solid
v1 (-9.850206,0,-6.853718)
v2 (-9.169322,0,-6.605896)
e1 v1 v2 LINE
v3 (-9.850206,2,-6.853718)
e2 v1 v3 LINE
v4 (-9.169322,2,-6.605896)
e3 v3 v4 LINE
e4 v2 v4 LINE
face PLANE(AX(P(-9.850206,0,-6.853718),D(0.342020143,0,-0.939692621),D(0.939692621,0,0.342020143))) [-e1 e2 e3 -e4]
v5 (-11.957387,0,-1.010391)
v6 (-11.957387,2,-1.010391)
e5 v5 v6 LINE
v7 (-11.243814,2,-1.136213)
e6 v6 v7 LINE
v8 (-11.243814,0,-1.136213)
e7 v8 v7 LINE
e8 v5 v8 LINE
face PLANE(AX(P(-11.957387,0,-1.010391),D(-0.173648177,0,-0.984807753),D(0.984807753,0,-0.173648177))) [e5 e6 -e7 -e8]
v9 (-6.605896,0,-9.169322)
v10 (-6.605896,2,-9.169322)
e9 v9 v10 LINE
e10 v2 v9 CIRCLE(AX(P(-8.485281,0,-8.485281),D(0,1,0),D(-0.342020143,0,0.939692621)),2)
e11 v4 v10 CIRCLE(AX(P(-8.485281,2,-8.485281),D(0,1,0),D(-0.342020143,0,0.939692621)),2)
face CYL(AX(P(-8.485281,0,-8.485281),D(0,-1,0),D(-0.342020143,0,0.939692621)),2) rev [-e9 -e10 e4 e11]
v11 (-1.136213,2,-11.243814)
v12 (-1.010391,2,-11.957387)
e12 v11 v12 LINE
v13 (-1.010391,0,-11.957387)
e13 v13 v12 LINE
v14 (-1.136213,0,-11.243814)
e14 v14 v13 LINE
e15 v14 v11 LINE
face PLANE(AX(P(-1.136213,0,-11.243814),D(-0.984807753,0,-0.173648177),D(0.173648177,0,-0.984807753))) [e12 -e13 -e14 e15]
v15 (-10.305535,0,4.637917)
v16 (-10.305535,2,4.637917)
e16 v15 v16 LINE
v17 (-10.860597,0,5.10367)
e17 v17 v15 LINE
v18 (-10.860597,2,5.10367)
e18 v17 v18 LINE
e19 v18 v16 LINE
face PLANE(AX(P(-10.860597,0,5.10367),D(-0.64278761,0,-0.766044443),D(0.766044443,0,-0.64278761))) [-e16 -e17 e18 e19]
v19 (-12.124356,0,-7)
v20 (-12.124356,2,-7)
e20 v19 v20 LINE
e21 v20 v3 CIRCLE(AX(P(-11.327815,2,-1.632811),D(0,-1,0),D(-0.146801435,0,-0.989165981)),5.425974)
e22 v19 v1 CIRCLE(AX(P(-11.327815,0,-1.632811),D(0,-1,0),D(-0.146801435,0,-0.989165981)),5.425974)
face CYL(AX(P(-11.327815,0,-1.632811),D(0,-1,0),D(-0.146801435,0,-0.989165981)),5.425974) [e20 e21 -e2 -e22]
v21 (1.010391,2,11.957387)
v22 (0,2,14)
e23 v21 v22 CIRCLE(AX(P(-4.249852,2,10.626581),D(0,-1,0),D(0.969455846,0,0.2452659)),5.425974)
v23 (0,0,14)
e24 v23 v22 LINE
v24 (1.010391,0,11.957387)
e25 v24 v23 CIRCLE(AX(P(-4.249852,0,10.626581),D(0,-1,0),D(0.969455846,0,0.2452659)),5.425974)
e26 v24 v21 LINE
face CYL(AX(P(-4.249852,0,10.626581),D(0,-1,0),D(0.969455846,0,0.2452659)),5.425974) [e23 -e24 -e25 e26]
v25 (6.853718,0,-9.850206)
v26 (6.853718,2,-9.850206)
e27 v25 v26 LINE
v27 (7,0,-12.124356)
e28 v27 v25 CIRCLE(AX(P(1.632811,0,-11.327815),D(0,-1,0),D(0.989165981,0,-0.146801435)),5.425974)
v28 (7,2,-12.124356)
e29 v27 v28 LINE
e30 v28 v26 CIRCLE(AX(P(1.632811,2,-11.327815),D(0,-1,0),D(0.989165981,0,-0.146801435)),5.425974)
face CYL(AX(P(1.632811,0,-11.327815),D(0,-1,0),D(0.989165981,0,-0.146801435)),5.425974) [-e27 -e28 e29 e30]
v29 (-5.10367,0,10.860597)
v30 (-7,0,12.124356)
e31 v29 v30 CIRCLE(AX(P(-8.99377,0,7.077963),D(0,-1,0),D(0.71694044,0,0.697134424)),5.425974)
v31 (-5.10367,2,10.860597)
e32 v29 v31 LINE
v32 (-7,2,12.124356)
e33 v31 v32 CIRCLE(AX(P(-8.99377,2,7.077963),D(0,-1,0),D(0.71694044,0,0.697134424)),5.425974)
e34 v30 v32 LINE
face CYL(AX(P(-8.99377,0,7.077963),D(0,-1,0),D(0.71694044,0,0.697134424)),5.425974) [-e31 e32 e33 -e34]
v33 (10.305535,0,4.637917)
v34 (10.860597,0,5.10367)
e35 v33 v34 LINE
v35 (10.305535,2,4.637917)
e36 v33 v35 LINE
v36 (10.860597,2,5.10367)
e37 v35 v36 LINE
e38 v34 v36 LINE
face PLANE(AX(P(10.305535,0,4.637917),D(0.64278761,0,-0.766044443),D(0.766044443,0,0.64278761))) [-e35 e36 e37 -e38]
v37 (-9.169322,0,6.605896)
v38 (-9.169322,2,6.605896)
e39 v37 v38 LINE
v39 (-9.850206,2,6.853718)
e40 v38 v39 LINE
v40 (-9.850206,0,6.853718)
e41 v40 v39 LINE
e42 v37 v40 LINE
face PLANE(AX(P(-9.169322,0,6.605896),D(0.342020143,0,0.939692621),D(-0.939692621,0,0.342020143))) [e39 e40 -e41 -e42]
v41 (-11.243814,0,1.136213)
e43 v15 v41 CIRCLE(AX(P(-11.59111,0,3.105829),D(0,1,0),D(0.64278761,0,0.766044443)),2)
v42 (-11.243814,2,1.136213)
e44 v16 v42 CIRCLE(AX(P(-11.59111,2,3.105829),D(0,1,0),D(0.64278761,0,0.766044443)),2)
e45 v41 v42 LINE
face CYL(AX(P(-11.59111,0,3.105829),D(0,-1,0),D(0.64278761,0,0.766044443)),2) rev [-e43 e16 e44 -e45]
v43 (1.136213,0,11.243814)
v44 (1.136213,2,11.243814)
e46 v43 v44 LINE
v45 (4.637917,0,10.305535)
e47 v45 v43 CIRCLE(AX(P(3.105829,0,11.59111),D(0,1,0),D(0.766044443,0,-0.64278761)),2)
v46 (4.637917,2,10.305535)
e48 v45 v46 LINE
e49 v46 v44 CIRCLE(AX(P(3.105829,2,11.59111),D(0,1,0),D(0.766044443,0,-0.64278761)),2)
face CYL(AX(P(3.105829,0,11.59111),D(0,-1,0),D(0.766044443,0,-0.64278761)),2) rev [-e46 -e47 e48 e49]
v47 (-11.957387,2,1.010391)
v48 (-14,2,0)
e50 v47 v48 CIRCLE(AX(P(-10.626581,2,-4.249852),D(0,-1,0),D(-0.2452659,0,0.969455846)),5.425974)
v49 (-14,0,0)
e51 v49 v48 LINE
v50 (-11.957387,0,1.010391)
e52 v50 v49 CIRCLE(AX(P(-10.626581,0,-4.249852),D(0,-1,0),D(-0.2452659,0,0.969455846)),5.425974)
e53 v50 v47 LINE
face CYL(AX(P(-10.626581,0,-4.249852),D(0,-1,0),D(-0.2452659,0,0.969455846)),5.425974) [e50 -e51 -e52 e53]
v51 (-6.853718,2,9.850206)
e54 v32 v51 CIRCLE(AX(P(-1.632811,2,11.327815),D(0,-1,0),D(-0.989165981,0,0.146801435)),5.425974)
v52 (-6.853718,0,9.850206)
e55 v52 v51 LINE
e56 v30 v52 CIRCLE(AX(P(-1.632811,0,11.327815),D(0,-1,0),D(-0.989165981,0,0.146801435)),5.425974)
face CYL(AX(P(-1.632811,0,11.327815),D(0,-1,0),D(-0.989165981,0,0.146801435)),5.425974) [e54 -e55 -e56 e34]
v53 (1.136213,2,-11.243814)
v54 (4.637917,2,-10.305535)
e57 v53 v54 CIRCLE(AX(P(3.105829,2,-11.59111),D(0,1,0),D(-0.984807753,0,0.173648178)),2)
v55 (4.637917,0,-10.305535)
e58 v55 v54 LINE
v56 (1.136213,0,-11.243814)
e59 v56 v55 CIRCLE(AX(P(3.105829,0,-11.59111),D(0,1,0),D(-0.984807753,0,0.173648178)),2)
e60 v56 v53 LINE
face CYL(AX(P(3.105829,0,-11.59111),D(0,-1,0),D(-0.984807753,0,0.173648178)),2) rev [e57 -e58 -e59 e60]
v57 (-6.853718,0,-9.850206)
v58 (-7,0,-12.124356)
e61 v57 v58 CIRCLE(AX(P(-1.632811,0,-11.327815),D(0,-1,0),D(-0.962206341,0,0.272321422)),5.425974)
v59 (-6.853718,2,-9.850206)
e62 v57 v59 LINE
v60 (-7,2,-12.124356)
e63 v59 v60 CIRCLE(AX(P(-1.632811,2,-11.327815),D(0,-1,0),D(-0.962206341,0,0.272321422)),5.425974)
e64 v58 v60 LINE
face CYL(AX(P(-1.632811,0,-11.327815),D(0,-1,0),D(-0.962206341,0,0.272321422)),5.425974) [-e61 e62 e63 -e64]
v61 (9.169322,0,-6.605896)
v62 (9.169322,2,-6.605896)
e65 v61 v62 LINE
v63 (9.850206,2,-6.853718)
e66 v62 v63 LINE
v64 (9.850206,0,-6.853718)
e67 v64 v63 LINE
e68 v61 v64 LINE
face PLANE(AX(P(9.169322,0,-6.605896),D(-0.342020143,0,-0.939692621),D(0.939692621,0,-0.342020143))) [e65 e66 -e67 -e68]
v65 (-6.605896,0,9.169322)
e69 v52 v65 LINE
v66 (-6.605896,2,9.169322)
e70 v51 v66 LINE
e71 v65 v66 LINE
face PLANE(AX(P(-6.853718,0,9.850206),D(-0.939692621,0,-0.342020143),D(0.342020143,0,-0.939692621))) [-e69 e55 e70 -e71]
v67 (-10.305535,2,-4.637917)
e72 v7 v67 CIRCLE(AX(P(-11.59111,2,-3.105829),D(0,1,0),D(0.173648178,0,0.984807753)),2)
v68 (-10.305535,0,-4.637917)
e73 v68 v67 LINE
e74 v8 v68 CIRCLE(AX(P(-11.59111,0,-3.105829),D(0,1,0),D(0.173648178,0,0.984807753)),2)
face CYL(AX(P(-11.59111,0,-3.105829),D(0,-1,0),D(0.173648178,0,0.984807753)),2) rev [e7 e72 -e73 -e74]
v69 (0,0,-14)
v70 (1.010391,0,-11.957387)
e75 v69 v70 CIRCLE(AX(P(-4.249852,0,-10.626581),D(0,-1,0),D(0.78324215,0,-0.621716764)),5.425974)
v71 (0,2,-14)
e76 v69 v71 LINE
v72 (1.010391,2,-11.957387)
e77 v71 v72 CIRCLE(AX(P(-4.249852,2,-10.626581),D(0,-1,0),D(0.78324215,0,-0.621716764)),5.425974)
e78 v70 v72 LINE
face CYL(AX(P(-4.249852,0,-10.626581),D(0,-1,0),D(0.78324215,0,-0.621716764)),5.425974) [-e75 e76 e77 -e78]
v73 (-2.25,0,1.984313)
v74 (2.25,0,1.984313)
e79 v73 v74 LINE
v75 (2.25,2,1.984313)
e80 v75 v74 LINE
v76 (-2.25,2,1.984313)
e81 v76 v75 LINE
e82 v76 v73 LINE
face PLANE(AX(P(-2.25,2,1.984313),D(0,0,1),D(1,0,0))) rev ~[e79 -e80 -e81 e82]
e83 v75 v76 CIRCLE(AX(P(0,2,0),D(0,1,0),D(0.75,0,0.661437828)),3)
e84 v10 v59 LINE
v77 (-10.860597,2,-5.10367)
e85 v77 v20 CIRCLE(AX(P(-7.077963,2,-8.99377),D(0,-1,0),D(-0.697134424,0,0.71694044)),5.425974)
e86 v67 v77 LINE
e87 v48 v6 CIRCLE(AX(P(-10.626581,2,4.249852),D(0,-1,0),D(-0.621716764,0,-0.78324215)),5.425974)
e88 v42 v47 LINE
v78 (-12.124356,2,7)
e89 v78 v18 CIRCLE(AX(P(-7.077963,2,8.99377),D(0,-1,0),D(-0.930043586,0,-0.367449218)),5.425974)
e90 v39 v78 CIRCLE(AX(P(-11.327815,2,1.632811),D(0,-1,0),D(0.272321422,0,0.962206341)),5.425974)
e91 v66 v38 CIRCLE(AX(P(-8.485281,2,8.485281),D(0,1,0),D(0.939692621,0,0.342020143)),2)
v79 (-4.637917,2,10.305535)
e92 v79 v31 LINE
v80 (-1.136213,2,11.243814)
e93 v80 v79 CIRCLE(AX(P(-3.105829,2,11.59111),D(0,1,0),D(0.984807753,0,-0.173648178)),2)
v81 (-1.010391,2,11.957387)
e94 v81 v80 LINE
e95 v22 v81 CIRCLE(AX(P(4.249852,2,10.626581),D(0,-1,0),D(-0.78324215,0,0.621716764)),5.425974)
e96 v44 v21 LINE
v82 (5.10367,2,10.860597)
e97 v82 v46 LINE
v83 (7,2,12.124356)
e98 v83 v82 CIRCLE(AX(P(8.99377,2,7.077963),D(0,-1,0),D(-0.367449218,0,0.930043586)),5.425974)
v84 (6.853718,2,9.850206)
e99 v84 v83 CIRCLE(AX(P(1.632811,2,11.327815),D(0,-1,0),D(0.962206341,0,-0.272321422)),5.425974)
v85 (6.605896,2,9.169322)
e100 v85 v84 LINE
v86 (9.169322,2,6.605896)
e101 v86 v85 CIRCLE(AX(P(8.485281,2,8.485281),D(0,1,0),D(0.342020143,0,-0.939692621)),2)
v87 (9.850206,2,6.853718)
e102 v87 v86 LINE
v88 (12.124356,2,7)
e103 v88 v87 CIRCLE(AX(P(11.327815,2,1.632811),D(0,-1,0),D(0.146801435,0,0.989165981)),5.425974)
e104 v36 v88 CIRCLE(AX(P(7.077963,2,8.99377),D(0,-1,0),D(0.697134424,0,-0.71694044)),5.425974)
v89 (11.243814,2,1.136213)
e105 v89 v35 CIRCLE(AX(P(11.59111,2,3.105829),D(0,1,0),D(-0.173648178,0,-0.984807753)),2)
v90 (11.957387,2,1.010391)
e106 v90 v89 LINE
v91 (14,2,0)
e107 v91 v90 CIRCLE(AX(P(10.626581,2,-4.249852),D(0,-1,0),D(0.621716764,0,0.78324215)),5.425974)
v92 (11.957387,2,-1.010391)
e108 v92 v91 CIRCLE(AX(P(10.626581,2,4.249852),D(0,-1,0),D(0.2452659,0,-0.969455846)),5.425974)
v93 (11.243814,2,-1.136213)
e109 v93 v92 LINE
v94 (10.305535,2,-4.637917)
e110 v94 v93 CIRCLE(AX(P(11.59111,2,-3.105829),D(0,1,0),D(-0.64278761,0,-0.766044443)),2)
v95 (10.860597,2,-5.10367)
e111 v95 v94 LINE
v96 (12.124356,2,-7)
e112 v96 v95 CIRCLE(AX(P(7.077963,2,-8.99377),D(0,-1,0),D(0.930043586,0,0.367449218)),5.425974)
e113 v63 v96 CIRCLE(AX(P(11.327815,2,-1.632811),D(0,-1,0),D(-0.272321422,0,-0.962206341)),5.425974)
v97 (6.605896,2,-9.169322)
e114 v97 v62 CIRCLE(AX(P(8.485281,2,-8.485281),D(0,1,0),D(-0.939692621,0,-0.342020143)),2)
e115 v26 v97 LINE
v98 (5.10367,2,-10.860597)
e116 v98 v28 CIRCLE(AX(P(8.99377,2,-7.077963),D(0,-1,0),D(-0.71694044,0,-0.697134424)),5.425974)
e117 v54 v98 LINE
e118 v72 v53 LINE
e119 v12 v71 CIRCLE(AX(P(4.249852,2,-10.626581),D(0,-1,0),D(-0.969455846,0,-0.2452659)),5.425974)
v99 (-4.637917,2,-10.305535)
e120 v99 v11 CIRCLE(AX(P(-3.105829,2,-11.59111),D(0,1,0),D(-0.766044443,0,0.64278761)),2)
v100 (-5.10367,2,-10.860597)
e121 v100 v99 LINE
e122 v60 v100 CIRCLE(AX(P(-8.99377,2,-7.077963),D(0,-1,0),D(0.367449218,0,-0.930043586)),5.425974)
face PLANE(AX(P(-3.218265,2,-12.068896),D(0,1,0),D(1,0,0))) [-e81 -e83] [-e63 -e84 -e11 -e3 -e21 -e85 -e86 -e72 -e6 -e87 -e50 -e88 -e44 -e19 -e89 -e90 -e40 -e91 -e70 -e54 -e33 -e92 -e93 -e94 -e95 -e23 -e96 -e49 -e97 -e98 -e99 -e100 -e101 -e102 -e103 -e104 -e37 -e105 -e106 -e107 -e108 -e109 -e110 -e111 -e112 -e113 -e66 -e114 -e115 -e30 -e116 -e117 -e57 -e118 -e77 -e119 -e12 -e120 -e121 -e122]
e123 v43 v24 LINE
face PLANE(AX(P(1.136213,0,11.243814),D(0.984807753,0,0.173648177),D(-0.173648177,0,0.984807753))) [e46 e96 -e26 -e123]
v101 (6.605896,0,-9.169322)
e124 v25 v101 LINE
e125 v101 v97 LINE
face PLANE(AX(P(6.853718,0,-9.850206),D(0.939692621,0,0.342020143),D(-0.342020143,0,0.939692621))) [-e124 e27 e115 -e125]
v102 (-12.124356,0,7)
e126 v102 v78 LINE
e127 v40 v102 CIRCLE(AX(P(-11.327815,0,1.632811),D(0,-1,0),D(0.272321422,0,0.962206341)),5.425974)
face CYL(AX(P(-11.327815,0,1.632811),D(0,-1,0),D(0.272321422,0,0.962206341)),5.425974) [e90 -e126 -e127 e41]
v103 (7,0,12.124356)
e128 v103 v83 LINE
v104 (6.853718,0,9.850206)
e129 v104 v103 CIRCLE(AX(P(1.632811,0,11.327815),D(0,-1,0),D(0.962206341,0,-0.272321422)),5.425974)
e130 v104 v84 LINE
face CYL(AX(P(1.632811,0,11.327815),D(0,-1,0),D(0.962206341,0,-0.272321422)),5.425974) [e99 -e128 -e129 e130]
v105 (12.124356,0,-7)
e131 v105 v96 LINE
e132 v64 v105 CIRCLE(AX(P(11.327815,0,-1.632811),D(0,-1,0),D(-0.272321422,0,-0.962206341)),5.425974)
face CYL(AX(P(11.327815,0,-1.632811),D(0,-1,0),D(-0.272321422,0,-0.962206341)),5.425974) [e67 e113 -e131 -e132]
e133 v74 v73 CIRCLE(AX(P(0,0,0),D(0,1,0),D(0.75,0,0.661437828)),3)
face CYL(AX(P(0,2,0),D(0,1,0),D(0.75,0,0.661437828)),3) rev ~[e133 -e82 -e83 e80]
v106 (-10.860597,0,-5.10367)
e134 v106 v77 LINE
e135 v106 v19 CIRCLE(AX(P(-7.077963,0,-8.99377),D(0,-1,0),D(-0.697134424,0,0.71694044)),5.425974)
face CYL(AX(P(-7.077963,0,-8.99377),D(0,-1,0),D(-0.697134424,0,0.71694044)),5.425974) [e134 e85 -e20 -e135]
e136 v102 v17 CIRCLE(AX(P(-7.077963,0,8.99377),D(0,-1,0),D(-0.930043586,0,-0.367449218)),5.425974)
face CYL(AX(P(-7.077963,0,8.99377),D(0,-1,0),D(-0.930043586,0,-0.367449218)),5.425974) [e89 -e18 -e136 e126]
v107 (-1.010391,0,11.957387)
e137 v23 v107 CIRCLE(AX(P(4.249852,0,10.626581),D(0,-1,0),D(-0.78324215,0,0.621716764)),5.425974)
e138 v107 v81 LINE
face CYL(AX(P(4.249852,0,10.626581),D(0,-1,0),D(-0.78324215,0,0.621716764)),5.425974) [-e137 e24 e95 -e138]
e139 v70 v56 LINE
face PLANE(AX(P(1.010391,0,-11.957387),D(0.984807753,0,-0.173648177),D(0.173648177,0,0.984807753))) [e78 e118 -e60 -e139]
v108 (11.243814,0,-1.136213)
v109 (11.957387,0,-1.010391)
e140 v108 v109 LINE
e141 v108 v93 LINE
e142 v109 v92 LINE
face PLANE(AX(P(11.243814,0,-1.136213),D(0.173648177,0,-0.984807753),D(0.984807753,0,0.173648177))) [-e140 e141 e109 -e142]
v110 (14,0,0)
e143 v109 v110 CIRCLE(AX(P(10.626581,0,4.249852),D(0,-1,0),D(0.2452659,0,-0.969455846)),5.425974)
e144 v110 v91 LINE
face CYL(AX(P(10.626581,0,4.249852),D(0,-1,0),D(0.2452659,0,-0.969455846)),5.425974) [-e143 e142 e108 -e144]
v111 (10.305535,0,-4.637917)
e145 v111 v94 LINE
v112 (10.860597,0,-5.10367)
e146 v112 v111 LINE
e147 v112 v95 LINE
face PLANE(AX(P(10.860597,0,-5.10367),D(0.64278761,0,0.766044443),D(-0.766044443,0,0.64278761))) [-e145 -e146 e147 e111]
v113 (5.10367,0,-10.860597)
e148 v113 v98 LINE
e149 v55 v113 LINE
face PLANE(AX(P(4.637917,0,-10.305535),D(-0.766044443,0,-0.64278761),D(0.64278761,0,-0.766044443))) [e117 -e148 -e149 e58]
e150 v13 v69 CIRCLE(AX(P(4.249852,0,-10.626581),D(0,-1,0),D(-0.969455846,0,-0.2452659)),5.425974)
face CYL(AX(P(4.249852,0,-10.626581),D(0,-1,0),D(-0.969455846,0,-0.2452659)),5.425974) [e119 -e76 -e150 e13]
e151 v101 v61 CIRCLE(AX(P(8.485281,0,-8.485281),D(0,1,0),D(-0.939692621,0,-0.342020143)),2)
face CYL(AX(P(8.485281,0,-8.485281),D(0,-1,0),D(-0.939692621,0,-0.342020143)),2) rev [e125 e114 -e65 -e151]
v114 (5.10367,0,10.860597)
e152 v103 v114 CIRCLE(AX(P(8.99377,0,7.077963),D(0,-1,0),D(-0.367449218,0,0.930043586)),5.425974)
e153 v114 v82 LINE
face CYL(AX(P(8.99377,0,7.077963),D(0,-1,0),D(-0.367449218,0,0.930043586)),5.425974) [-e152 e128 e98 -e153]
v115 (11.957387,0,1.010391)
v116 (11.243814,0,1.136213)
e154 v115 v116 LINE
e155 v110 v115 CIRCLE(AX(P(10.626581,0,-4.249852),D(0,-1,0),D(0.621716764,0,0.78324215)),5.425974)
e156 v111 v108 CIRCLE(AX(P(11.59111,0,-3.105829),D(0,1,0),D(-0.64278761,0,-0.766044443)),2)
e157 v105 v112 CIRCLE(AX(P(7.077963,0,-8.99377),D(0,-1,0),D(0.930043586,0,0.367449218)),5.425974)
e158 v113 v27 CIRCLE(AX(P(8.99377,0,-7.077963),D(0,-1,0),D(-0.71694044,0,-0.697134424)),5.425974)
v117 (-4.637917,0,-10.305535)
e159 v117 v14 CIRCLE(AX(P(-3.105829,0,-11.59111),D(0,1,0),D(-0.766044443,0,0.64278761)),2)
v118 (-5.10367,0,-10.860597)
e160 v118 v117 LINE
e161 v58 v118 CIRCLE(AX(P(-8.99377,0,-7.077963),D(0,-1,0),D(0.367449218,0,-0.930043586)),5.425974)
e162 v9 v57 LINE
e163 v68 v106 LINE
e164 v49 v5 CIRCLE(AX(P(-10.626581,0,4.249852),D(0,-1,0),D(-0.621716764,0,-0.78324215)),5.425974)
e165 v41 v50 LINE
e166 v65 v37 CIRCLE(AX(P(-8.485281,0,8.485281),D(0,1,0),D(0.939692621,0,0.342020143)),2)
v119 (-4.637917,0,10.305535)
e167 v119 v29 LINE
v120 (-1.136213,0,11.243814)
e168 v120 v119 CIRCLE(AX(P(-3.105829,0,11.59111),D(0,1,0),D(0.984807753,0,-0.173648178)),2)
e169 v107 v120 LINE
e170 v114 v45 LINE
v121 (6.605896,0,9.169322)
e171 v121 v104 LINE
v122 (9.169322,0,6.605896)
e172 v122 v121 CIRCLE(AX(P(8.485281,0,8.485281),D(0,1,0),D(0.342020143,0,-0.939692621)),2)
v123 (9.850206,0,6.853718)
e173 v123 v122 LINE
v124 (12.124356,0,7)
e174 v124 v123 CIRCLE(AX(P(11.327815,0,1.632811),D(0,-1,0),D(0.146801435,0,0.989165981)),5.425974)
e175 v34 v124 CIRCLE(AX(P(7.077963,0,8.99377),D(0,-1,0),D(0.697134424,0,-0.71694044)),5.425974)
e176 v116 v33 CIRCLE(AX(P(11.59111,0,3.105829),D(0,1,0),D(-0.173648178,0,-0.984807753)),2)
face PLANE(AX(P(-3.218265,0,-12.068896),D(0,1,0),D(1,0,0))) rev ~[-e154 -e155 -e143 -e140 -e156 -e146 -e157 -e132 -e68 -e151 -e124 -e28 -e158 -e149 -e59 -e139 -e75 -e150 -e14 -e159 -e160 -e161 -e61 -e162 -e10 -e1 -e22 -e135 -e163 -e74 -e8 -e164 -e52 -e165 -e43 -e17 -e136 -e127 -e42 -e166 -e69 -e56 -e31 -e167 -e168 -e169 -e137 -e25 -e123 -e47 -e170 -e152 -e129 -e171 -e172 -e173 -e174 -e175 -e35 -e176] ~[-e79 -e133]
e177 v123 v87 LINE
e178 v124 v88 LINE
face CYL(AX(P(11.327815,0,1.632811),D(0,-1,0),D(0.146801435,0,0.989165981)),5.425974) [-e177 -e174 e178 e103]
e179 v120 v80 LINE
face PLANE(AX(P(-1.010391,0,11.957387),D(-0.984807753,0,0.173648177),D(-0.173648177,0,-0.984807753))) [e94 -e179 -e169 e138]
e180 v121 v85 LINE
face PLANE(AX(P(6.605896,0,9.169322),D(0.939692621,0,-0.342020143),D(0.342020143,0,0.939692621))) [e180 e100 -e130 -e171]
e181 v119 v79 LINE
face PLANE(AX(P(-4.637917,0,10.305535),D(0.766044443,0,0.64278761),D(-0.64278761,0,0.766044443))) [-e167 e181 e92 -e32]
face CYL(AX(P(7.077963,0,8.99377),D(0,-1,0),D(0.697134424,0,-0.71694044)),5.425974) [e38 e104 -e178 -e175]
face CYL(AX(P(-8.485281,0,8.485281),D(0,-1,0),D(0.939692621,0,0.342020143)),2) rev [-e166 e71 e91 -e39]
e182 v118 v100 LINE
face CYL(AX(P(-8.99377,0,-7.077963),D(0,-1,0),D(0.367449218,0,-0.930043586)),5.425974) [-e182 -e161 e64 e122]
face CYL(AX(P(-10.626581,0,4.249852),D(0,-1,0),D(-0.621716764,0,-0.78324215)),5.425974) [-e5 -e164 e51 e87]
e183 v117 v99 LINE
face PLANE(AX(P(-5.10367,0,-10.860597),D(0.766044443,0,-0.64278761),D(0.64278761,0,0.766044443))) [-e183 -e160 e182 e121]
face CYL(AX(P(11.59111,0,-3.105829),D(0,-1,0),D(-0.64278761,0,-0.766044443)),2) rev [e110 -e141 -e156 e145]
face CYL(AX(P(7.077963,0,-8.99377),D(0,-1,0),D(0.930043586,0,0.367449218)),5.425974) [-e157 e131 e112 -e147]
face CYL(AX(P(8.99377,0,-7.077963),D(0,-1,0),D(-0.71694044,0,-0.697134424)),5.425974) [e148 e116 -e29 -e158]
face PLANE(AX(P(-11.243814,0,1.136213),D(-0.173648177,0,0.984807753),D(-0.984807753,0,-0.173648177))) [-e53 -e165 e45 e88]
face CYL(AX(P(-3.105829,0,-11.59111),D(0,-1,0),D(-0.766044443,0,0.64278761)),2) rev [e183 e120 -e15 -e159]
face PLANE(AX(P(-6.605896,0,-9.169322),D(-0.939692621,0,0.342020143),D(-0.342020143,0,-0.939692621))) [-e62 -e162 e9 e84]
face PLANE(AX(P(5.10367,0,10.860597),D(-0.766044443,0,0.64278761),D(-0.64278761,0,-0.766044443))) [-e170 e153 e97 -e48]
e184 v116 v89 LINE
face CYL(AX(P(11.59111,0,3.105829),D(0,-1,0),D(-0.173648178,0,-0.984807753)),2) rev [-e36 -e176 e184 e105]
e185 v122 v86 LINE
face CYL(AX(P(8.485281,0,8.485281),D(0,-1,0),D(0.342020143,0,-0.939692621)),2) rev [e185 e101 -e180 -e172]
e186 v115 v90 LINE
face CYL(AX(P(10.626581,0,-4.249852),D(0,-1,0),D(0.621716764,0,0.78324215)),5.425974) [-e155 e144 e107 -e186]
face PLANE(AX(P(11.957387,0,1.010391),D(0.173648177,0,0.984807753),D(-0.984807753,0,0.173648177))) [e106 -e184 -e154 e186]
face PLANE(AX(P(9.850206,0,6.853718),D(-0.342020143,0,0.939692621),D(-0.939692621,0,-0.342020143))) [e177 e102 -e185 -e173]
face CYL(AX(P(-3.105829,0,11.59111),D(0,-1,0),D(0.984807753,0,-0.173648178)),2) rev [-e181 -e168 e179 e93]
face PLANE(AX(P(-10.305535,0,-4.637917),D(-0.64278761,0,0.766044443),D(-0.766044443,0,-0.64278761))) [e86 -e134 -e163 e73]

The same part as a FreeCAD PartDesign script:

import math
import FreeCAD as App
import Part
import Sketcher
from FreeCAD import Vector
Q = App.Units.Quantity

doc = App.newDocument("Part")
params = doc.addObject("Spreadsheet::Sheet", "Params")
for row, (alias, value) in enumerate([
    ("sketch1_radius", "14 mm"),
    ("pad1_length", "2 mm"),
    ("sketch2_radius", "14 mm"),
    ("sketch2_radius2", "2 mm"),
    ("pocket1_length", "2 mm"),
    ("sketch3_radius", "3 mm"),
    ("sketch3_width", "4.5 mm"),
    ("pocket2_length", "2 mm"),
    ("sketch4_radius", "14 mm"),
    ("sketch4_radius2", "2 mm"),
    ("pocket3_length", "2 mm"),
], start=1):
    params.set(f"A{row}", alias)
    params.set(f"B{row}", "=" + value)
    params.setAlias(f"B{row}", alias)

body = doc.addObject("PartDesign::Body", "Body")

# Sketch on XZ plane
sketch1 = body.newObject("Sketcher::SketchObject", "Sketch")
sketch1.AttachmentSupport = (doc.getObject("XZ_Plane"), [""])
sketch1.MapMode = "FlatFace"
sketch1.addGeometry([
    Part.ArcOfCircle(Part.Circle(Vector(0, 0, 0), Vector(0, 0, 1), 14), math.radians(-90), math.radians(0)),
    Part.ArcOfCircle(Part.Circle(Vector(0, 0, 0), Vector(0, 0, 1), 14), math.radians(-119.861885), math.radians(-90)),
    Part.ArcOfCircle(Part.Circle(Vector(0, 0, 0), Vector(0, 0, 1), 14), math.radians(0), math.radians(240.138115)),
], False)
sketch1.addConstraint([
    Sketcher.Constraint("Tangent", 0, 1, 1, 2),
    Sketcher.Constraint("Tangent", 1, 1, 2, 2),
    Sketcher.Constraint("Tangent", 2, 1, 0, 2),
    Sketcher.Constraint("Coincident", 0, 3, -1, 1),
    Sketcher.Constraint("PointOnObject", 0, 1, -2),
    Sketcher.Constraint("PointOnObject", 2, 1, -1),
    Sketcher.Constraint("Radius", 0, Q("14 mm")),
    Sketcher.Constraint("DistanceX", 1, 1, -1, 1, Q("6.970753 mm")),
])
sketch1.setExpression("Constraints[6]", "Params.sketch1_radius")
pad1 = body.newObject("PartDesign::Pad", "Pad")
pad1.Profile = sketch1
pad1.setExpression("Length", "Params.pad1_length")
pad1.Reversed = True

# Sketch on XZ plane
sketch2 = body.newObject("Sketcher::SketchObject", "Sketch001")
sketch2.AttachmentSupport = (doc.getObject("XZ_Plane"), [""])
sketch2.MapMode = "FlatFace"
sketch2.addGeometry([
    Part.LineSegment(Vector(-1.136213, -11.243814, 0), Vector(-1.010391, -11.957387, 0)),  # 0
    Part.ArcOfCircle(Part.Circle(Vector(4.249852, -10.626581, 0), Vector(0, 0, 1), 5.425974), math.radians(-165.802452), math.radians(-141.55839)),  # 1
    Part.ArcOfCircle(Part.Circle(Vector(0, 0, 0), Vector(0, 0, 1), 14), math.radians(-120), math.radians(-90)),  # 2
    Part.ArcOfCircle(Part.Circle(Vector(-8.99377, -7.077963, 0), Vector(0, 0, 1), 5.425974), math.radians(-68.44161), math.radians(-44.197548)),  # 3
    Part.LineSegment(Vector(-5.10367, -10.860597, 0), Vector(-4.637917, -10.305535, 0)),  # 4
    Part.ArcOfCircle(Part.Circle(Vector(-3.105829, -11.59111, 0), Vector(0, 0, 1), 2), math.radians(10), math.radians(140)),  # 5
], False)
sketch2.addConstraint([
    Sketcher.Constraint("Coincident", 0, 2, 1, 1),
    Sketcher.Constraint("Coincident", 1, 2, 2, 2),
    Sketcher.Constraint("Coincident", 2, 1, 3, 1),
    Sketcher.Constraint("Coincident", 3, 2, 4, 1),
    Sketcher.Constraint("Tangent", 4, 2, 5, 2),
    Sketcher.Constraint("Tangent", 5, 1, 0, 1),
    Sketcher.Constraint("Coincident", 2, 3, -1, 1),
    Sketcher.Constraint("Equal", 1, 3),
    Sketcher.Constraint("PointOnObject", 1, 2, -2),
    Sketcher.Constraint("Equal", 0, 4),
    Sketcher.Constraint("Radius", 2, Q("14 mm")),
    Sketcher.Constraint("Radius", 5, Q("2 mm")),
    Sketcher.Constraint("Angle", 0, Q("-80 deg")),
    Sketcher.Constraint("Angle", 4, Q("50 deg")),
    Sketcher.Constraint("DistanceX", 2, 1, -1, 1, Q("7 mm")),
    Sketcher.Constraint("Radius", 1, Q("5.425974 mm")),
    Sketcher.Constraint("DistanceX", 3, 3, 3, 2, Q("3.8901 mm")),
    Sketcher.Constraint("Distance", 0, Q("0.724582 mm")),
    Sketcher.Constraint("DistanceX", -1, 1, 1, 3, Q("4.249852 mm")),
])
sketch2.setExpression("Constraints[10]", "Params.sketch2_radius")
sketch2.setExpression("Constraints[11]", "Params.sketch2_radius2")
pocket1 = body.newObject("PartDesign::Pocket", "Pocket")
pocket1.Profile = sketch2
pocket1.setExpression("Length", "Params.pocket1_length")

# Sketch on XZ plane
sketch3 = body.newObject("Sketcher::SketchObject", "Sketch002")
sketch3.AttachmentSupport = (doc.getObject("XZ_Plane"), [""])
sketch3.MapMode = "FlatFace"
sketch3.AttachmentOffset = App.Placement(Vector(0, 0, -2), App.Rotation())
sketch3.addGeometry([
    Part.LineSegment(Vector(-2.25, 1.984313, 0), Vector(2.25, 1.984313, 0)),
    Part.ArcOfCircle(Part.Circle(Vector(0, 0, 0), Vector(0, 0, 1), 3), math.radians(138.590378), math.radians(401.409622)),
], False)
sketch3.addConstraint([
    Sketcher.Constraint("Coincident", 0, 1, 1, 1),
    Sketcher.Constraint("Coincident", 1, 2, 0, 2),
    Sketcher.Constraint("Horizontal", 0),
    Sketcher.Constraint("Coincident", 1, 3, -1, 1),
    Sketcher.Constraint("Radius", 1, Q("3 mm")),
    Sketcher.Constraint("DistanceX", 0, 1, 0, 2, Q("4.5 mm")),
])
sketch3.setExpression("Constraints[4]", "Params.sketch3_radius")
sketch3.setExpression("Constraints[5]", "Params.sketch3_width")
pocket2 = body.newObject("PartDesign::Pocket", "Pocket001")
pocket2.Profile = sketch3
pocket2.setExpression("Length", "Params.pocket2_length")
pocket2.Reversed = True

# Sketch on XZ plane
sketch4 = body.newObject("Sketcher::SketchObject", "Sketch003")
sketch4.AttachmentSupport = (doc.getObject("XZ_Plane"), [""])
sketch4.MapMode = "FlatFace"
sketch4.addGeometry([
    Part.ArcOfCircle(Part.Circle(Vector(0, 0, 0), Vector(0, 0, 1), 14), math.radians(-90), math.radians(-60)),  # 0
    Part.ArcOfCircle(Part.Circle(Vector(-4.249852, -10.626581, 0), Vector(0, 0, 1), 5.425974), math.radians(-38.44161), math.radians(-14.197548)),  # 1
    Part.LineSegment(Vector(1.010391, -11.957387, 0), Vector(1.136213, -11.243814, 0)),  # 2
    Part.ArcOfCircle(Part.Circle(Vector(3.105829, -11.59111, 0), Vector(0, 0, 1), 2), math.radians(40), math.radians(170)),  # 3
    Part.LineSegment(Vector(4.637917, -10.305535, 0), Vector(5.10367, -10.860597, 0)),  # 4
    Part.ArcOfCircle(Part.Circle(Vector(8.99377, -7.077963, 0), Vector(0, 0, 1), 5.425974), math.radians(-135.802452), math.radians(-111.55839)),  # 5
    Part.ArcOfCircle(Part.Circle(Vector(0, 0, 0), Vector(0, 0, 1), 14), math.radians(-60), math.radians(-30)),  # 6
    Part.ArcOfCircle(Part.Circle(Vector(1.632811, -11.327815, 0), Vector(0, 0, 1), 5.425974), math.radians(-8.44161), math.radians(15.802452)),  # 7
    Part.LineSegment(Vector(6.853718, -9.850206, 0), Vector(6.605896, -9.169322, 0)),  # 8
    Part.ArcOfCircle(Part.Circle(Vector(8.485281, -8.485281, 0), Vector(0, 0, 1), 2), math.radians(70), math.radians(200)),  # 9
    Part.LineSegment(Vector(9.169322, -6.605896, 0), Vector(9.850206, -6.853718, 0)),  # 10
    Part.ArcOfCircle(Part.Circle(Vector(11.327815, -1.632811, 0), Vector(0, 0, 1), 5.425974), math.radians(-105.802452), math.radians(-81.55839)),  # 11
    Part.ArcOfCircle(Part.Circle(Vector(0, 0, 0), Vector(0, 0, 1), 14), math.radians(-30), math.radians(0)),  # 12
    Part.ArcOfCircle(Part.Circle(Vector(7.077963, -8.99377, 0), Vector(0, 0, 1), 5.425974), math.radians(21.55839), math.radians(45.802452)),  # 13
    Part.LineSegment(Vector(10.860597, -5.10367, 0), Vector(10.305535, -4.637917, 0)),  # 14
    Part.ArcOfCircle(Part.Circle(Vector(11.59111, -3.105829, 0), Vector(0, 0, 1), 2), math.radians(100), math.radians(230)),  # 15
    Part.LineSegment(Vector(11.243814, -1.136213, 0), Vector(11.957387, -1.010391, 0)),  # 16
    Part.ArcOfCircle(Part.Circle(Vector(10.626581, 4.249852, 0), Vector(0, 0, 1), 5.425974), math.radians(-75.802452), math.radians(-51.55839)),  # 17
    Part.ArcOfCircle(Part.Circle(Vector(-1.632811, -11.327815, 0), Vector(0, 0, 1), 5.425974), math.radians(164.197548), math.radians(188.44161)),  # 18
    Part.ArcOfCircle(Part.Circle(Vector(0, 0, 0), Vector(0, 0, 1), 14), math.radians(-150), math.radians(-120)),  # 19
    Part.ArcOfCircle(Part.Circle(Vector(-11.327815, -1.632811, 0), Vector(0, 0, 1), 5.425974), math.radians(-98.44161), math.radians(-74.197548)),  # 20
    Part.LineSegment(Vector(-9.850206, -6.853718, 0), Vector(-9.169322, -6.605896, 0)),  # 21
    Part.ArcOfCircle(Part.Circle(Vector(-8.485281, -8.485281, 0), Vector(0, 0, 1), 2), math.radians(-20), math.radians(110)),  # 22
    Part.LineSegment(Vector(-6.605896, -9.169322, 0), Vector(-6.853718, -9.850206, 0)),  # 23
    Part.ArcOfCircle(Part.Circle(Vector(0, 0, 0), Vector(0, 0, 1), 14), math.radians(0), math.radians(30)),  # 24
    Part.ArcOfCircle(Part.Circle(Vector(10.626581, -4.249852, 0), Vector(0, 0, 1), 5.425974), math.radians(51.55839), math.radians(75.802452)),  # 25
    Part.LineSegment(Vector(11.957387, 1.010391, 0), Vector(11.243814, 1.136213, 0)),  # 26
    Part.ArcOfCircle(Part.Circle(Vector(11.59111, 3.105829, 0), Vector(0, 0, 1), 2), math.radians(130), math.radians(260)),  # 27
    Part.LineSegment(Vector(10.305535, 4.637917, 0), Vector(10.860597, 5.10367, 0)),  # 28
    Part.ArcOfCircle(Part.Circle(Vector(7.077963, 8.99377, 0), Vector(0, 0, 1), 5.425974), math.radians(-45.802452), math.radians(-21.55839)),  # 29
    Part.ArcOfCircle(Part.Circle(Vector(-7.077963, -8.99377, 0), Vector(0, 0, 1), 5.425974), math.radians(134.197548), math.radians(158.44161)),  # 30
    Part.ArcOfCircle(Part.Circle(Vector(0, 0, 0), Vector(0, 0, 1), 14), math.radians(-180), math.radians(-150)),  # 31
    Part.ArcOfCircle(Part.Circle(Vector(-10.626581, 4.249852, 0), Vector(0, 0, 1), 5.425974), math.radians(-128.44161), math.radians(-104.197548)),  # 32
    Part.LineSegment(Vector(-11.957387, -1.010391, 0), Vector(-11.243814, -1.136213, 0)),  # 33
    Part.ArcOfCircle(Part.Circle(Vector(-11.59111, -3.105829, 0), Vector(0, 0, 1), 2), math.radians(-50), math.radians(80)),  # 34
    Part.LineSegment(Vector(-10.305535, -4.637917, 0), Vector(-10.860597, -5.10367, 0)),  # 35
    Part.ArcOfCircle(Part.Circle(Vector(0, 0, 0), Vector(0, 0, 1), 14), math.radians(30), math.radians(60)),  # 36
    Part.ArcOfCircle(Part.Circle(Vector(11.327815, 1.632811, 0), Vector(0, 0, 1), 5.425974), math.radians(81.55839), math.radians(105.802452)),  # 37
    Part.LineSegment(Vector(9.850206, 6.853718, 0), Vector(9.169322, 6.605896, 0)),  # 38
    Part.ArcOfCircle(Part.Circle(Vector(8.485281, 8.485281, 0), Vector(0, 0, 1), 2), math.radians(160), math.radians(290)),  # 39
    Part.LineSegment(Vector(6.605896, 9.169322, 0), Vector(6.853718, 9.850206, 0)),  # 40
    Part.ArcOfCircle(Part.Circle(Vector(1.632811, 11.327815, 0), Vector(0, 0, 1), 5.425974), math.radians(-15.802452), math.radians(8.44161)),  # 41
    Part.ArcOfCircle(Part.Circle(Vector(-10.626581, -4.249852, 0), Vector(0, 0, 1), 5.425974), math.radians(104.197548), math.radians(128.44161)),  # 42
    Part.ArcOfCircle(Part.Circle(Vector(0, 0, 0), Vector(0, 0, 1), 14), math.radians(150), math.radians(180)),  # 43
    Part.ArcOfCircle(Part.Circle(Vector(-7.077963, 8.99377, 0), Vector(0, 0, 1), 5.425974), math.radians(-158.44161), math.radians(-134.197548)),  # 44
    Part.LineSegment(Vector(-10.860597, 5.10367, 0), Vector(-10.305535, 4.637917, 0)),  # 45
    Part.ArcOfCircle(Part.Circle(Vector(-11.59111, 3.105829, 0), Vector(0, 0, 1), 2), math.radians(-80), math.radians(50)),  # 46
    Part.LineSegment(Vector(-11.243814, 1.136213, 0), Vector(-11.957387, 1.010391, 0)),  # 47
    Part.ArcOfCircle(Part.Circle(Vector(0, 0, 0), Vector(0, 0, 1), 14), math.radians(60), math.radians(90)),  # 48
    Part.ArcOfCircle(Part.Circle(Vector(8.99377, 7.077963, 0), Vector(0, 0, 1), 5.425974), math.radians(111.55839), math.radians(135.802452)),  # 49
    Part.LineSegment(Vector(5.10367, 10.860597, 0), Vector(4.637917, 10.305535, 0)),  # 50
    Part.ArcOfCircle(Part.Circle(Vector(3.105829, 11.59111, 0), Vector(0, 0, 1), 2), math.radians(-170), math.radians(-40)),  # 51
    Part.LineSegment(Vector(1.136213, 11.243814, 0), Vector(1.010391, 11.957387, 0)),  # 52
    Part.ArcOfCircle(Part.Circle(Vector(-4.249852, 10.626581, 0), Vector(0, 0, 1), 5.425974), math.radians(14.197548), math.radians(38.44161)),  # 53
    Part.ArcOfCircle(Part.Circle(Vector(-11.327815, 1.632811, 0), Vector(0, 0, 1), 5.425974), math.radians(74.197548), math.radians(98.44161)),  # 54
    Part.ArcOfCircle(Part.Circle(Vector(0, 0, 0), Vector(0, 0, 1), 14), math.radians(120), math.radians(150)),  # 55
    Part.ArcOfCircle(Part.Circle(Vector(-1.632811, 11.327815, 0), Vector(0, 0, 1), 5.425974), math.radians(171.55839), math.radians(195.802452)),  # 56
    Part.LineSegment(Vector(-6.853718, 9.850206, 0), Vector(-6.605896, 9.169322, 0)),  # 57
    Part.ArcOfCircle(Part.Circle(Vector(-8.485281, 8.485281, 0), Vector(0, 0, 1), 2), math.radians(-110), math.radians(20)),  # 58
    Part.LineSegment(Vector(-9.169322, 6.605896, 0), Vector(-9.850206, 6.853718, 0)),  # 59
    Part.ArcOfCircle(Part.Circle(Vector(0, 0, 0), Vector(0, 0, 1), 14), math.radians(90), math.radians(120)),  # 60
    Part.ArcOfCircle(Part.Circle(Vector(4.249852, 10.626581, 0), Vector(0, 0, 1), 5.425974), math.radians(141.55839), math.radians(165.802452)),  # 61
    Part.LineSegment(Vector(-1.010391, 11.957387, 0), Vector(-1.136213, 11.243814, 0)),  # 62
    Part.ArcOfCircle(Part.Circle(Vector(-3.105829, 11.59111, 0), Vector(0, 0, 1), 2), math.radians(-140), math.radians(-10)),  # 63
    Part.LineSegment(Vector(-4.637917, 10.305535, 0), Vector(-5.10367, 10.860597, 0)),  # 64
    Part.ArcOfCircle(Part.Circle(Vector(-8.99377, 7.077963, 0), Vector(0, 0, 1), 5.425974), math.radians(44.197548), math.radians(68.44161)),  # 65
], False)
sketch4.addConstraint([
    Sketcher.Constraint("Coincident", 0, 1, 1, 1),
    Sketcher.Constraint("Coincident", 1, 2, 2, 1),
    Sketcher.Constraint("Tangent", 2, 2, 3, 2),
    Sketcher.Constraint("Tangent", 3, 1, 4, 1),
    Sketcher.Constraint("Coincident", 4, 2, 5, 1),
    Sketcher.Constraint("Coincident", 5, 2, 0, 2),
    Sketcher.Constraint("Coincident", 6, 1, 7, 1),
    Sketcher.Constraint("Coincident", 7, 2, 8, 1),
    Sketcher.Constraint("Tangent", 8, 2, 9, 2),
    Sketcher.Constraint("Tangent", 9, 1, 10, 1),
    Sketcher.Constraint("Coincident", 10, 2, 11, 1),
    Sketcher.Constraint("Coincident", 11, 2, 6, 2),
    Sketcher.Constraint("Coincident", 12, 1, 13, 1),
    Sketcher.Constraint("Coincident", 13, 2, 14, 1),
    Sketcher.Constraint("Tangent", 14, 2, 15, 2),
    Sketcher.Constraint("Tangent", 15, 1, 16, 1),
    Sketcher.Constraint("Coincident", 16, 2, 17, 1),
    Sketcher.Constraint("Coincident", 17, 2, 12, 2),
    Sketcher.Constraint("Coincident", 18, 2, 19, 2),
    Sketcher.Constraint("Coincident", 19, 1, 20, 1),
    Sketcher.Constraint("Coincident", 20, 2, 21, 1),
    Sketcher.Constraint("Tangent", 21, 2, 22, 2),
    Sketcher.Constraint("Tangent", 22, 1, 23, 1),
    Sketcher.Constraint("Coincident", 23, 2, 18, 1),
    Sketcher.Constraint("Coincident", 24, 1, 25, 1),
    Sketcher.Constraint("Coincident", 25, 2, 26, 1),
    Sketcher.Constraint("Tangent", 26, 2, 27, 2),
    Sketcher.Constraint("Tangent", 27, 1, 28, 1),
    Sketcher.Constraint("Coincident", 28, 2, 29, 1),
    Sketcher.Constraint("Coincident", 29, 2, 24, 2),
    Sketcher.Constraint("Coincident", 30, 2, 31, 2),
    Sketcher.Constraint("Coincident", 31, 1, 32, 1),
    Sketcher.Constraint("Coincident", 32, 2, 33, 1),
    Sketcher.Constraint("Tangent", 33, 2, 34, 2),
    Sketcher.Constraint("Tangent", 34, 1, 35, 1),
    Sketcher.Constraint("Coincident", 35, 2, 30, 1),
    Sketcher.Constraint("Coincident", 36, 1, 37, 1),
    Sketcher.Constraint("Coincident", 37, 2, 38, 1),
    Sketcher.Constraint("Tangent", 38, 2, 39, 2),
    Sketcher.Constraint("Tangent", 39, 1, 40, 1),
    Sketcher.Constraint("Coincident", 40, 2, 41, 1),
    Sketcher.Constraint("Coincident", 41, 2, 36, 2),
    Sketcher.Constraint("Coincident", 42, 2, 43, 2),
    Sketcher.Constraint("Coincident", 43, 1, 44, 1),
    Sketcher.Constraint("Coincident", 44, 2, 45, 1),
    Sketcher.Constraint("Tangent", 45, 2, 46, 2),
    Sketcher.Constraint("Tangent", 46, 1, 47, 1),
    Sketcher.Constraint("Coincident", 47, 2, 42, 1),
    Sketcher.Constraint("Coincident", 48, 1, 49, 1),
    Sketcher.Constraint("Coincident", 49, 2, 50, 1),
    Sketcher.Constraint("Tangent", 50, 2, 51, 2),
    Sketcher.Constraint("Tangent", 51, 1, 52, 1),
    Sketcher.Constraint("Coincident", 52, 2, 53, 1),
    Sketcher.Constraint("Coincident", 53, 2, 48, 2),
    Sketcher.Constraint("Coincident", 54, 2, 55, 2),
    Sketcher.Constraint("Coincident", 55, 1, 56, 1),
    Sketcher.Constraint("Coincident", 56, 2, 57, 1),
    Sketcher.Constraint("Tangent", 57, 2, 58, 2),
    Sketcher.Constraint("Tangent", 58, 1, 59, 1),
    Sketcher.Constraint("Coincident", 59, 2, 54, 1),
    Sketcher.Constraint("Coincident", 60, 1, 61, 1),
    Sketcher.Constraint("Coincident", 61, 2, 62, 1),
    Sketcher.Constraint("Tangent", 62, 2, 63, 2),
    Sketcher.Constraint("Tangent", 63, 1, 64, 1),
    Sketcher.Constraint("Coincident", 64, 2, 65, 1),
    Sketcher.Constraint("Coincident", 65, 2, 60, 2),
    Sketcher.Constraint("Coincident", 0, 3, -1, 1),
    Sketcher.Constraint("Coincident", 6, 3, -1, 1),
    Sketcher.Constraint("Coincident", 12, 3, -1, 1),
    Sketcher.Constraint("Coincident", 19, 3, -1, 1),
    Sketcher.Constraint("Coincident", 24, 3, -1, 1),
    Sketcher.Constraint("Coincident", 31, 3, -1, 1),
    Sketcher.Constraint("Coincident", 36, 3, -1, 1),
    Sketcher.Constraint("Coincident", 43, 3, -1, 1),
    Sketcher.Constraint("Coincident", 48, 3, -1, 1),
    Sketcher.Constraint("Coincident", 55, 3, -1, 1),
    Sketcher.Constraint("Coincident", 60, 3, -1, 1),
    Sketcher.Constraint("Coincident", 6, 1, 5, 2),
    Sketcher.Constraint("Coincident", 12, 1, 11, 2),
    Sketcher.Constraint("Coincident", 24, 1, 17, 2),
    Sketcher.Constraint("Coincident", 30, 2, 19, 1),
    Sketcher.Constraint("Coincident", 36, 1, 29, 2),
    Sketcher.Constraint("Coincident", 42, 2, 31, 1),
    Sketcher.Constraint("Coincident", 48, 1, 41, 2),
    Sketcher.Constraint("Coincident", 54, 2, 43, 1),
    Sketcher.Constraint("Coincident", 60, 1, 53, 2),
    Sketcher.Constraint("Coincident", 65, 2, 55, 1),
    Sketcher.Constraint("Equal", 1, 5),
    Sketcher.Constraint("Equal", 5, 7),
    Sketcher.Constraint("Equal", 3, 9),
    Sketcher.Constraint("Equal", 7, 11),
    Sketcher.Constraint("Equal", 11, 13),
    Sketcher.Constraint("Equal", 9, 15),
    Sketcher.Constraint("Equal", 13, 17),
    Sketcher.Constraint("Equal", 17, 18),
    Sketcher.Constraint("Equal", 18, 20),
    Sketcher.Constraint("Equal", 15, 22),
    Sketcher.Constraint("Equal", 20, 25),
    Sketcher.Constraint("Equal", 22, 27),
    Sketcher.Constraint("Equal", 25, 29),
    Sketcher.Constraint("Equal", 29, 30),
    Sketcher.Constraint("Equal", 30, 32),
    Sketcher.Constraint("Equal", 27, 34),
    Sketcher.Constraint("Equal", 32, 37),
    Sketcher.Constraint("Equal", 34, 39),
    Sketcher.Constraint("Equal", 37, 41),
    Sketcher.Constraint("Equal", 41, 42),
    Sketcher.Constraint("Equal", 42, 44),
    Sketcher.Constraint("Equal", 39, 46),
    Sketcher.Constraint("Equal", 44, 49),
    Sketcher.Constraint("Equal", 46, 51),
    Sketcher.Constraint("Equal", 49, 53),
    Sketcher.Constraint("Equal", 53, 54),
    Sketcher.Constraint("Equal", 54, 56),
    Sketcher.Constraint("Equal", 51, 58),
    Sketcher.Constraint("Equal", 56, 61),
    Sketcher.Constraint("Equal", 58, 63),
    Sketcher.Constraint("Equal", 61, 65),
    Sketcher.Constraint("Symmetric", 29, 3, 30, 3, -1, 1),
    Sketcher.Constraint("Symmetric", 25, 3, 32, 3, -1, 1),
    Sketcher.Constraint("Symmetric", 27, 3, 34, 3, -1, 1),
    Sketcher.Constraint("Symmetric", 22, 3, 39, 3, -1, 1),
    Sketcher.Constraint("Symmetric", 18, 3, 41, 3, -1, 1),
    Sketcher.Constraint("Symmetric", 13, 3, 44, 3, -1, 1),
    Sketcher.Constraint("Symmetric", 15, 3, 46, 3, -1, 1),
    Sketcher.Constraint("Symmetric", 7, 3, 56, 3, -1, 1),
    Sketcher.Constraint("Symmetric", 9, 3, 58, 3, -1, 1),
    Sketcher.Constraint("Symmetric", 1, 3, 61, 3, -1, 1),
    Sketcher.Constraint("Symmetric", 3, 3, 63, 3, -1, 1),
    Sketcher.Constraint("Symmetric", 20, 2, 37, 2, -1, 1),
    Sketcher.Constraint("Symmetric", 16, 2, 47, 2, -1, 1),
    Sketcher.Constraint("Symmetric", 10, 2, 59, 2, -1, 1),
    Sketcher.Constraint("Symmetric", 4, 2, 64, 2, -1, 1),
    Sketcher.Constraint("Symmetric", 7, 3, 18, 3, -2),
    Sketcher.Constraint("Symmetric", 11, 3, 20, 3, -2),
    Sketcher.Constraint("Symmetric", 9, 3, 22, 3, -2),
    Sketcher.Constraint("Symmetric", 17, 3, 32, 3, -2),
    Sketcher.Constraint("Symmetric", 15, 3, 34, 3, -2),
    Sketcher.Constraint("Symmetric", 53, 3, 61, 3, -2),
    Sketcher.Constraint("Symmetric", 51, 3, 63, 3, -2),
    Sketcher.Constraint("Symmetric", 13, 2, 35, 2, -2),
    Sketcher.Constraint("Symmetric", 49, 2, 64, 2, -2),
    Sketcher.Constraint("Perpendicular", 8, 21),
    Sketcher.Constraint("Perpendicular", 10, 23),
    Sketcher.Constraint("Perpendicular", 2, 26),
    Sketcher.Constraint("Perpendicular", 4, 28),
    Sketcher.Constraint("Parallel", 26, 33),
    Sketcher.Constraint("Parallel", 28, 35),
    Sketcher.Constraint("Parallel", 23, 40),
    Sketcher.Constraint("Parallel", 14, 45),
    Sketcher.Constraint("Perpendicular", 47, 52),
    Sketcher.Constraint("Perpendicular", 38, 57),
    Sketcher.Constraint("Perpendicular", 33, 62),
    Sketcher.Constraint("Horizontal", 10, 2, 20, 2),
    Sketcher.Constraint("Horizontal", 16, 2, 32, 2),
    Sketcher.Constraint("Equal", 2, 4),
    Sketcher.Constraint("Equal", 4, 8),
    Sketcher.Constraint("Equal", 8, 10),
    Sketcher.Constraint("Equal", 10, 14),
    Sketcher.Constraint("Equal", 14, 16),
    Sketcher.Constraint("Radius", 0, Q("14 mm")),
    Sketcher.Constraint("Radius", 3, Q("2 mm")),
    Sketcher.Constraint("Angle", 2, Q("80 deg")),
    Sketcher.Constraint("Angle", 4, Q("-50 deg")),
    Sketcher.Constraint("Angle", 8, Q("110 deg")),
    Sketcher.Constraint("DistanceX", -1, 1, 5, 2, Q("7 mm")),
    Sketcher.Constraint("DistanceY", 11, 2, -1, 1, Q("7 mm")),
    Sketcher.Constraint("Radius", 1, Q("5.425974 mm")),
    Sketcher.Constraint("Distance", 2, Q("0.724582 mm")),
    Sketcher.Constraint("DistanceX", 1, 3, -1, 1, Q("4.249852 mm")),
    Sketcher.Constraint("DistanceX", -1, 1, 3, 3, Q("3.105829 mm")),
    Sketcher.Constraint("DistanceX", -1, 1, 7, 3, Q("1.632811 mm")),
    Sketcher.Constraint("DistanceX", -1, 1, 9, 3, Q("8.485281 mm")),
    Sketcher.Constraint("DistanceY", 13, 3, -1, 1, Q("8.99377 mm")),
    Sketcher.Constraint("DistanceX", -1, 1, 15, 3, Q("11.59111 mm")),
])
sketch4.setExpression("Constraints[160]", "Params.sketch4_radius")
sketch4.setExpression("Constraints[161]", "Params.sketch4_radius2")
pocket3 = body.newObject("PartDesign::Pocket", "Pocket002")
pocket3.Profile = sketch4
pocket3.setExpression("Length", "Params.pocket3_length")

doc.recompute()
